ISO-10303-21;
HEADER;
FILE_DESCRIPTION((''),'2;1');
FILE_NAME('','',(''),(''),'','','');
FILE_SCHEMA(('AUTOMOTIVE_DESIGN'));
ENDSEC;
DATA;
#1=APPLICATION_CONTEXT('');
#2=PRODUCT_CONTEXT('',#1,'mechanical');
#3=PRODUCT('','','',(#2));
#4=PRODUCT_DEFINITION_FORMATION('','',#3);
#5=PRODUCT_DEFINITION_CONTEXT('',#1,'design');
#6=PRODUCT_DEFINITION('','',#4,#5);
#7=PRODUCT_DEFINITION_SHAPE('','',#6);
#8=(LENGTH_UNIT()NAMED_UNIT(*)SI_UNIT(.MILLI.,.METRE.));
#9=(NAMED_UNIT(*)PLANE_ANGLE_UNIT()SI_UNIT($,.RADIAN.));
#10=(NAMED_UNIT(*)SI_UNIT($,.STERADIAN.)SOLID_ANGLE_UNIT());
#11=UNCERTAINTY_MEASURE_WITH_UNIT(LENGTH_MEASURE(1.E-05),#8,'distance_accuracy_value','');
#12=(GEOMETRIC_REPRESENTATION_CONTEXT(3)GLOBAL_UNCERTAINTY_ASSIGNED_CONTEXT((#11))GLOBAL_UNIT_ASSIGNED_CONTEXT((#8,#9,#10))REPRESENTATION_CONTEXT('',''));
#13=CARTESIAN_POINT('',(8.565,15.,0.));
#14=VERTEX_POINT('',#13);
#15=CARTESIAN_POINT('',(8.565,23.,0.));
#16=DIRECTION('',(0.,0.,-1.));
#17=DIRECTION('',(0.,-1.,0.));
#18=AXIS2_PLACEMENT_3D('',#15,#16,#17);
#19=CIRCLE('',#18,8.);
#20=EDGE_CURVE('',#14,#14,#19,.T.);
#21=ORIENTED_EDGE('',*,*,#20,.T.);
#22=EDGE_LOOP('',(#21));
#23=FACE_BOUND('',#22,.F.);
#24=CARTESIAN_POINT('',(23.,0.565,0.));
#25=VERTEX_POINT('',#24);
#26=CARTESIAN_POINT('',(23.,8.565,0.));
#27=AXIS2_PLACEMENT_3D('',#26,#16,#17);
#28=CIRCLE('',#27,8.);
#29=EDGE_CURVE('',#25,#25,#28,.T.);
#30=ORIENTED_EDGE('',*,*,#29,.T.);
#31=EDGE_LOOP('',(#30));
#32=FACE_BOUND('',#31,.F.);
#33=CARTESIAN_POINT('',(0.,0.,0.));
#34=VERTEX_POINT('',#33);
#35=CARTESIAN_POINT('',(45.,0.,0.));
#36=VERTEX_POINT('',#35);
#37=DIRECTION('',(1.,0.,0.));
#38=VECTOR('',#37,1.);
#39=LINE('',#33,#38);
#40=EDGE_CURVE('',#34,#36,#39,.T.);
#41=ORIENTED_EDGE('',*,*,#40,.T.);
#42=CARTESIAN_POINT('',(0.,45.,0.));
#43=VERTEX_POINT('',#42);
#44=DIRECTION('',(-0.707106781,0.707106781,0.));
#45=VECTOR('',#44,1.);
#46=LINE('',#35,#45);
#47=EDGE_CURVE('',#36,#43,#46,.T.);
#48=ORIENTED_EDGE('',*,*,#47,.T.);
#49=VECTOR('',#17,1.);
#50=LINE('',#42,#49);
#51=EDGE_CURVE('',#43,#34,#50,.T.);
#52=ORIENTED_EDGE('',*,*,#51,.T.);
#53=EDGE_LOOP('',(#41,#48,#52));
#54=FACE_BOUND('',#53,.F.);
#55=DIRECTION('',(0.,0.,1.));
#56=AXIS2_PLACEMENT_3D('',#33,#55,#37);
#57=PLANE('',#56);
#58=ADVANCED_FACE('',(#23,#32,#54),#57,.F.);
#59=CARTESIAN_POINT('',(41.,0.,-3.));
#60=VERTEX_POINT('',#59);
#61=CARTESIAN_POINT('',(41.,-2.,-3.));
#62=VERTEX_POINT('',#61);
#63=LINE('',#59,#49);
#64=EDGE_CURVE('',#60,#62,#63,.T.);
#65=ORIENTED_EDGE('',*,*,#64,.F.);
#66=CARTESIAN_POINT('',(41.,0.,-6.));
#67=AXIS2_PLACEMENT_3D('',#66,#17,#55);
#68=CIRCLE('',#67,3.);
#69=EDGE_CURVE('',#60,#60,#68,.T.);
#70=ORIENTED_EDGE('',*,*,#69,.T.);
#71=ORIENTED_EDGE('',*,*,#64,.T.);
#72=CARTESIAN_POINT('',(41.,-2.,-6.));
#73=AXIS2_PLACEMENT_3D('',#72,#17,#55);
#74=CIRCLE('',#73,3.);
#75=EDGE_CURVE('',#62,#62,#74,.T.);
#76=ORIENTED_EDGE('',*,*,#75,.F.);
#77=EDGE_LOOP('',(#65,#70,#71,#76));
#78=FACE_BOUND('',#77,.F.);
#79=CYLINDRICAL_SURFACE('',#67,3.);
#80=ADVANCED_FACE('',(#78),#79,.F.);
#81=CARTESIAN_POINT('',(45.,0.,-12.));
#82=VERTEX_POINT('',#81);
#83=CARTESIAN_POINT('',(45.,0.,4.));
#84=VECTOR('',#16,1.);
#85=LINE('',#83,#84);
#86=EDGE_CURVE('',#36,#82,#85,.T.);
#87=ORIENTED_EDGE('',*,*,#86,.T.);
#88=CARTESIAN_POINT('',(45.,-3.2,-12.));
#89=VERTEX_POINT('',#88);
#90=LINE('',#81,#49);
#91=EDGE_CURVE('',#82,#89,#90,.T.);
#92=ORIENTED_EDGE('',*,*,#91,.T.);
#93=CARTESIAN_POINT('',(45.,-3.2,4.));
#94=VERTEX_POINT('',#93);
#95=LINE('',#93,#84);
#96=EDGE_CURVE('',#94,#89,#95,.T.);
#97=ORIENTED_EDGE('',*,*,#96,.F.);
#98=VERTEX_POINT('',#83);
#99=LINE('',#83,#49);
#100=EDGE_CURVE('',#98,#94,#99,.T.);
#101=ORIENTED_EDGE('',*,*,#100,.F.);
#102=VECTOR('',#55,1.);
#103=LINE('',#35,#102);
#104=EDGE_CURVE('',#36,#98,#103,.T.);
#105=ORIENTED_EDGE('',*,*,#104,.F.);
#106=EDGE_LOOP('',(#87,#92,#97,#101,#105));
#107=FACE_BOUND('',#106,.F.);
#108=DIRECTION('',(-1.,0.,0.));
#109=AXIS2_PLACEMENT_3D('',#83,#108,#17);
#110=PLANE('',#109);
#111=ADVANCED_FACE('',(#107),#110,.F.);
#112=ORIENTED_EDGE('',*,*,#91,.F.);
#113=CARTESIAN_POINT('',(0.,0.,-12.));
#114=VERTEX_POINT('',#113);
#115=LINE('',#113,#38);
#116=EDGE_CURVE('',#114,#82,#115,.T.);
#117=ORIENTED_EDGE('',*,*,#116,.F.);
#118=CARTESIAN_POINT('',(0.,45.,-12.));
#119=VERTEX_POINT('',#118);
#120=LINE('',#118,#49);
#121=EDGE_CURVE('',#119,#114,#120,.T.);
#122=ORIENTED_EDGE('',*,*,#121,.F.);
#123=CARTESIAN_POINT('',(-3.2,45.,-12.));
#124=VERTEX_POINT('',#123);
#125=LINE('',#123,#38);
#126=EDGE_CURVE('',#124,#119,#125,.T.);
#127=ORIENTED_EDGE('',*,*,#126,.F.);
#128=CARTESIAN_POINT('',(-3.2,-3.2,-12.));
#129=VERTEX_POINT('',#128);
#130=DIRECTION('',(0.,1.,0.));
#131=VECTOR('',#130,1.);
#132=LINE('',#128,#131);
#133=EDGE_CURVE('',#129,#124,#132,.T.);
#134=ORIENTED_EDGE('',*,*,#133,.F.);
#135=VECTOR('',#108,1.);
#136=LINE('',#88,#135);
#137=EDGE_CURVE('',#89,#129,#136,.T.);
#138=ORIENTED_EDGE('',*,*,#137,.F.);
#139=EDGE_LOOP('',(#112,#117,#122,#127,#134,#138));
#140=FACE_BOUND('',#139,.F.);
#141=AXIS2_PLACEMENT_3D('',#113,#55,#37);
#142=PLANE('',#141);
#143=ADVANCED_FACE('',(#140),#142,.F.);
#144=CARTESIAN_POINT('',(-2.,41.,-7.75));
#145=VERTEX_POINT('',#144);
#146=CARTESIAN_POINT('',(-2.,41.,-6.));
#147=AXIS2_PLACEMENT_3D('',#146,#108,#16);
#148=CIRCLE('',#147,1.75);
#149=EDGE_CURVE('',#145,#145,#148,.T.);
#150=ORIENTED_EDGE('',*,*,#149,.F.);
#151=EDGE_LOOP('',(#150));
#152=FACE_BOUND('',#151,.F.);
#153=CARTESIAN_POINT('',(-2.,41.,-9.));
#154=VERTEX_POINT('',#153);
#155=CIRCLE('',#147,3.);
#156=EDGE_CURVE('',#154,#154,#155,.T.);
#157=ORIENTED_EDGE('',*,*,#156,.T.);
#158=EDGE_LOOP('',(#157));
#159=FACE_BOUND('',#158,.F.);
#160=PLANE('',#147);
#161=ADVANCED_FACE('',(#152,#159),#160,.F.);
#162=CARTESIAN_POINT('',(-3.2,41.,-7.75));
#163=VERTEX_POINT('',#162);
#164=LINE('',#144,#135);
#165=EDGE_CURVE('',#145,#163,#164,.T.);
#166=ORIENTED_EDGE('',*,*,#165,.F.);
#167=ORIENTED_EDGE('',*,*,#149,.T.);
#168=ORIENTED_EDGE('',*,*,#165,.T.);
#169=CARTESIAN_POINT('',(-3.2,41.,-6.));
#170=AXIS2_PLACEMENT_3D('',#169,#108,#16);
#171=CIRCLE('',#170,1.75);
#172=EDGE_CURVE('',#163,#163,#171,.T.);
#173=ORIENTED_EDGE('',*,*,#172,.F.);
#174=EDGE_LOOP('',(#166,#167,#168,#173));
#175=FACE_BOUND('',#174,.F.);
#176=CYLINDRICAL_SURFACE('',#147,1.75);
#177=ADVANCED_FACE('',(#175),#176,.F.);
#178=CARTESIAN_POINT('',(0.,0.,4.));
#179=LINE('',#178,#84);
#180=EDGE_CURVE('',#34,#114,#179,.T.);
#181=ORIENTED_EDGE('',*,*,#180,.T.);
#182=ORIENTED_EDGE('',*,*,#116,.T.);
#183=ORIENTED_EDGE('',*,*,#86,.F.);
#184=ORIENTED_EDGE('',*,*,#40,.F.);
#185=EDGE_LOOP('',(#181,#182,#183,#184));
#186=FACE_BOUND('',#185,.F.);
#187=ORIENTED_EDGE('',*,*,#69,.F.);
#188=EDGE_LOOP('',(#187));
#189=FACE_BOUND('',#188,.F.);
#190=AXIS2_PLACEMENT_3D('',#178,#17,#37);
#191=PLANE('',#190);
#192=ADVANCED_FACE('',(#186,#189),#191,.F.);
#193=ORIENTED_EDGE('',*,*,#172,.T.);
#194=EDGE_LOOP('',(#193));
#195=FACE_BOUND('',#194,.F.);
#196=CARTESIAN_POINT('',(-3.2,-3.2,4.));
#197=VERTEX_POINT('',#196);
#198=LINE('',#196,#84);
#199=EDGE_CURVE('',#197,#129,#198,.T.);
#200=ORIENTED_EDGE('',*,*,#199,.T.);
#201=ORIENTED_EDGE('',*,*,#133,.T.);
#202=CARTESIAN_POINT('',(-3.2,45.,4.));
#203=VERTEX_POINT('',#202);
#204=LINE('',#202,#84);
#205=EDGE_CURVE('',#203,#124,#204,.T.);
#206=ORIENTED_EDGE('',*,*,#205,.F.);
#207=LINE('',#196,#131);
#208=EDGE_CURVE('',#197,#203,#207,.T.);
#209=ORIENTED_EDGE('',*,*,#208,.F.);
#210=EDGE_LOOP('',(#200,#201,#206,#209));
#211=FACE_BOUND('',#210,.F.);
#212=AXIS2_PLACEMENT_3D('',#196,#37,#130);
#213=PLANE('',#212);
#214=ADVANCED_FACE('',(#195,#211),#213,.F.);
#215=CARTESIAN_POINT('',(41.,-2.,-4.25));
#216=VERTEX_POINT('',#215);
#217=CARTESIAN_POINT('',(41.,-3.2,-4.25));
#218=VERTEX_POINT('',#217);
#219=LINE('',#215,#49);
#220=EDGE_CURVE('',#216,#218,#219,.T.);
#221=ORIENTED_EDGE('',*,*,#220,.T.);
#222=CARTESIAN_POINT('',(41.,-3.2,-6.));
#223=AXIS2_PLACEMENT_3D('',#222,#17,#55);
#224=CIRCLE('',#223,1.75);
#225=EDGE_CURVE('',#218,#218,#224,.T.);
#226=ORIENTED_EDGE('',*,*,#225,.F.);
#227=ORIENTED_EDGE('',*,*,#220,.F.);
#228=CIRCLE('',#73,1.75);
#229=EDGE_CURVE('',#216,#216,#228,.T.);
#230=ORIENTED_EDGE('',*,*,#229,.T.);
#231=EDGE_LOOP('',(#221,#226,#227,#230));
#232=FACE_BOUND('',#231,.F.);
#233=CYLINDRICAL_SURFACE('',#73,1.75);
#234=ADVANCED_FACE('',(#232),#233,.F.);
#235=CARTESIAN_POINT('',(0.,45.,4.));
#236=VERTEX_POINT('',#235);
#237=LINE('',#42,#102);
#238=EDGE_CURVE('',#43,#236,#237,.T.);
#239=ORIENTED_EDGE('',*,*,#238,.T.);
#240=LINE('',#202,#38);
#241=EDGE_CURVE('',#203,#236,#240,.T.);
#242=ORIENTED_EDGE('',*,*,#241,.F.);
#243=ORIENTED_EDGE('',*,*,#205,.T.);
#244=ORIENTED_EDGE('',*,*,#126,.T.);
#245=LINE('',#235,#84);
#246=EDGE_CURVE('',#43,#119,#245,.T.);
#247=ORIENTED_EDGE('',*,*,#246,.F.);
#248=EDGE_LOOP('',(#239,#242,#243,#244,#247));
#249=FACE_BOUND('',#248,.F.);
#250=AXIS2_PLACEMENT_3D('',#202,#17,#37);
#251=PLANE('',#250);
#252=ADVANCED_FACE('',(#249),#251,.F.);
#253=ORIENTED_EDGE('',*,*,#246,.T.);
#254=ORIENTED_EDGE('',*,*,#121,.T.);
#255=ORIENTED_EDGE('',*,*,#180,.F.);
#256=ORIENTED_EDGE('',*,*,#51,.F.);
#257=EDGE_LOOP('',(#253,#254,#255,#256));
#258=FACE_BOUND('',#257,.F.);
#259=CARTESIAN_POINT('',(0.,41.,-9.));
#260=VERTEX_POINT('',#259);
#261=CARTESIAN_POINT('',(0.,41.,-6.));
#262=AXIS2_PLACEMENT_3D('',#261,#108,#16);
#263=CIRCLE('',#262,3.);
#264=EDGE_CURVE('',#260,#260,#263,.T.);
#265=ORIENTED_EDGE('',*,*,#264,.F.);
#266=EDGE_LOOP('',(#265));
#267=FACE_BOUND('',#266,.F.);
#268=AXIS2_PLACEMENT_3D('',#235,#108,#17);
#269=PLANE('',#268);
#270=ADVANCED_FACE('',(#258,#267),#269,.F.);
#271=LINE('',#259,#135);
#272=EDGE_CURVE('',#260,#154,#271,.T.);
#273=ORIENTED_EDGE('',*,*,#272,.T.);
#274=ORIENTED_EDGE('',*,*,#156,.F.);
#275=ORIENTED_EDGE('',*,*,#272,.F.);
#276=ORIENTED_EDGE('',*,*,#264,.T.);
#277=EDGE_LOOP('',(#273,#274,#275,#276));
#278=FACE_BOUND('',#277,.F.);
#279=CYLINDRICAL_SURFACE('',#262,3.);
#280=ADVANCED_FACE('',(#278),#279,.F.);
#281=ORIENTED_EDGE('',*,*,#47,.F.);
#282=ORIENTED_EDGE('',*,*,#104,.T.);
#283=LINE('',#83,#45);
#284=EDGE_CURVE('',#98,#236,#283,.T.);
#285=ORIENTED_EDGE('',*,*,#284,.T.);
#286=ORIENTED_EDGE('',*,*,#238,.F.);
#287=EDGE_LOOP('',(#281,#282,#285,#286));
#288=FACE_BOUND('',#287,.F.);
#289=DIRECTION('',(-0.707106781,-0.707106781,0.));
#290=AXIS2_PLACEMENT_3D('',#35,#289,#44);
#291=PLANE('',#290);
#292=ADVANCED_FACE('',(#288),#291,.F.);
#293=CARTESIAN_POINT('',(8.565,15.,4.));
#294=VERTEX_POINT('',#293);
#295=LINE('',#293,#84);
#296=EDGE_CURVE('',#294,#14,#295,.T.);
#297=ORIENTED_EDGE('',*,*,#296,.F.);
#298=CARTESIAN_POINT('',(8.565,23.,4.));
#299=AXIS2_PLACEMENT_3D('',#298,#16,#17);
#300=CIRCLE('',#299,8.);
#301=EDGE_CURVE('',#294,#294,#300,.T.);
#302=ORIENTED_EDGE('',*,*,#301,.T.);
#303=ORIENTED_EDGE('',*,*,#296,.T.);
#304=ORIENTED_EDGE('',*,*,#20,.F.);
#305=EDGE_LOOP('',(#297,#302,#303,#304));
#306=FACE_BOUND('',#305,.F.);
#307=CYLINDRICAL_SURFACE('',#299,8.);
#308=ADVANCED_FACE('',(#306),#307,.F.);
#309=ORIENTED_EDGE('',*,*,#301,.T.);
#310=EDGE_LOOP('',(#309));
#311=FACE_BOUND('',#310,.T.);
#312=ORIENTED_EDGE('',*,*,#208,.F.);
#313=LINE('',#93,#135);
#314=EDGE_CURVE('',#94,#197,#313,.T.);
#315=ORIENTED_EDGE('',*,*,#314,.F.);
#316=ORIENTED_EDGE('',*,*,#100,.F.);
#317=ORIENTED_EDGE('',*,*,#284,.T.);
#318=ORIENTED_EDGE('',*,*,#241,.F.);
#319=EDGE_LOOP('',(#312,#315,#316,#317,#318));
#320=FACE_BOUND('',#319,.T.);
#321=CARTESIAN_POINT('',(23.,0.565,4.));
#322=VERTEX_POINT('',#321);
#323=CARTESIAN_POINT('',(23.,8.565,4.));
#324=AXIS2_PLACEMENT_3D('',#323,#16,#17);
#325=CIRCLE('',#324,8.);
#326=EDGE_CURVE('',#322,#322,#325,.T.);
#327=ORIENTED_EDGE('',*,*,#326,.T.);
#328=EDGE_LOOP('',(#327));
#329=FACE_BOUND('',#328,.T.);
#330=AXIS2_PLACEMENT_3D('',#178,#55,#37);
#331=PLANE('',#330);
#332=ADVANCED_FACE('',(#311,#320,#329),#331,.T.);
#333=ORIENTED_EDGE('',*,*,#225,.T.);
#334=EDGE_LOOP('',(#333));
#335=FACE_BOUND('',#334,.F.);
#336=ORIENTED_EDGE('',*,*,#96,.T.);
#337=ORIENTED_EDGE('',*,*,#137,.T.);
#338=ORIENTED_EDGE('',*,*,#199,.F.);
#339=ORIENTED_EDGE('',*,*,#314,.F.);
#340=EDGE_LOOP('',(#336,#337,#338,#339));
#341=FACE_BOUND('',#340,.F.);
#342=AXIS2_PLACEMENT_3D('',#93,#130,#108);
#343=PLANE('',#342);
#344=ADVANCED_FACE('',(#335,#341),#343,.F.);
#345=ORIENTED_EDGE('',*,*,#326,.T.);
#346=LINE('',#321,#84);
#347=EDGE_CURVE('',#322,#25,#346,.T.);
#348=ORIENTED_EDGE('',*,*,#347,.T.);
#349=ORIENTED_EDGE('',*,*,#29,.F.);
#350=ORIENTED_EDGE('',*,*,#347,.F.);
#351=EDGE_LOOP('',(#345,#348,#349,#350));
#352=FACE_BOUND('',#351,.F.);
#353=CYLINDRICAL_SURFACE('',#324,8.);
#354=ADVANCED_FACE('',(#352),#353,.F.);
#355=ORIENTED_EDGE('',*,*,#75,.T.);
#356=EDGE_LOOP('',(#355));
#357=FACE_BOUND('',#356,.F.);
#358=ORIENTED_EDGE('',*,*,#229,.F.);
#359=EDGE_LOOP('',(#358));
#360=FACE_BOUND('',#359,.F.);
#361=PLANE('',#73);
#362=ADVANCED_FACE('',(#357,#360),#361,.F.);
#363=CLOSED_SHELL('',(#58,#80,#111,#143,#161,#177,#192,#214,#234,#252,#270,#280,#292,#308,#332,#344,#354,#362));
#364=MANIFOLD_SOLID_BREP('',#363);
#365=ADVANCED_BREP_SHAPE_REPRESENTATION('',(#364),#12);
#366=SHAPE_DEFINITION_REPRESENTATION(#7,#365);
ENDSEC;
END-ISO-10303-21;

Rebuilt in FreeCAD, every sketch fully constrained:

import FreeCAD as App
import Part
import Sketcher
Q = App.Units.Quantity


def add_polygon(sketch, points):
    """Adds a closed chain of lines whose ends are joined by coincident constraints."""
    first, n = sketch.GeometryCount, len(points)
    for a, b in zip(points, points[1:] + points[:1]):
        sketch.addGeometry(Part.LineSegment(App.Vector(*a, 0), App.Vector(*b, 0)), False)
    for i in range(n):
        sketch.addConstraint(Sketcher.Constraint("Coincident", first + i, 2, first + (i + 1) % n, 1))

doc = App.newDocument("Part")
body = doc.addObject("PartDesign::Body", "Body")

# Sketch on XY plane
sketch1 = body.newObject("Sketcher::SketchObject", "Sketch")
sketch1.AttachmentSupport = (doc.getObject("XY_Plane"), [""])
sketch1.MapMode = "FlatFace"
add_polygon(sketch1, [(0, 45), (0, 0), (45, 0)])  # lines 0-2
sketch1.addConstraint(Sketcher.Constraint("Vertical", 0))
sketch1.addConstraint(Sketcher.Constraint("Horizontal", 1))
sketch1.addConstraint(Sketcher.Constraint("Coincident", 0, 2, -1, 1))
sketch1.addConstraint(Sketcher.Constraint("Equal", 1, 0))
sketch1.addConstraint(Sketcher.Constraint("DistanceX", 1, 1, 1, 2, Q("45 mm")))
pad1 = body.newObject("PartDesign::Pad", "Pad")
pad1.Profile = sketch1
pad1.Length = 4

# Sketch on XY plane
sketch2 = body.newObject("Sketcher::SketchObject", "Sketch001")
sketch2.AttachmentSupport = (doc.getObject("XY_Plane"), [""])
sketch2.MapMode = "FlatFace"
sketch2.AttachmentOffset = App.Placement(App.Vector(0, 0, 4), App.Rotation())
add_polygon(sketch2, [(45, -3.2), (45, 0), (0, 0), (0, 45), (-3.2, 45), (-3.2, -3.2)])  # lines 0-5
sketch2.addConstraint(Sketcher.Constraint("Vertical", 0))
sketch2.addConstraint(Sketcher.Constraint("Horizontal", 1))
sketch2.addConstraint(Sketcher.Constraint("Vertical", 2))
sketch2.addConstraint(Sketcher.Constraint("Horizontal", 3))
sketch2.addConstraint(Sketcher.Constraint("Vertical", 4))
sketch2.addConstraint(Sketcher.Constraint("Horizontal", 5))
sketch2.addConstraint(Sketcher.Constraint("Coincident", 1, 2, -1, 1))
sketch2.addConstraint(Sketcher.Constraint("Equal", 3, 0))
sketch2.addConstraint(Sketcher.Constraint("Equal", 1, 2))
sketch2.addConstraint(Sketcher.Constraint("DistanceX", 3, 2, 3, 1, Q("3.2 mm")))
sketch2.addConstraint(Sketcher.Constraint("DistanceX", 1, 2, 1, 1, Q("45 mm")))
pad2 = body.newObject("PartDesign::Pad", "Pad001")
pad2.Profile = sketch2
pad2.Length = 16
pad2.Reversed = True

# Sketch on XY plane
sketch3 = body.newObject("Sketcher::SketchObject", "Sketch002")
sketch3.AttachmentSupport = (doc.getObject("XY_Plane"), [""])
sketch3.MapMode = "FlatFace"
sketch3.AttachmentOffset = App.Placement(App.Vector(0, 0, 4), App.Rotation())
sketch3.addGeometry(Part.Circle(App.Vector(9, 23, 0), App.Vector(0, 0, 1), 8), False)
sketch3.addGeometry(Part.Circle(App.Vector(23, 9, 0), App.Vector(0, 0, 1), 8), False)
sketch3.addConstraint(Sketcher.Constraint("Equal", 0, 1))
sketch3.addConstraint(Sketcher.Constraint("Diameter", 0, Q("16 mm")))
sketch3.addConstraint(Sketcher.Constraint("DistanceY", -1, 1, 0, 3, Q("23 mm")))
sketch3.addConstraint(Sketcher.Constraint("DistanceX", -1, 1, 1, 3, Q("23 mm")))
sketch3.addConstraint(Sketcher.Constraint("DistanceX", -1, 1, 0, 3, Q("8.565 mm")))
sketch3.addConstraint(Sketcher.Constraint("DistanceY", -1, 1, 1, 3, Q("8.565 mm")))
doc.recompute()
hole = body.newObject("PartDesign::Hole", "Hole")
hole.Profile = sketch3
hole.ThreadType = "None"
hole.Diameter = 16
hole.DepthType = "ThroughAll"

# Sketch on XZ plane
sketch4 = body.newObject("Sketcher::SketchObject", "Sketch003")
sketch4.AttachmentSupport = (doc.getObject("XZ_Plane"), [""])
sketch4.MapMode = "FlatFace"
sketch4.addGeometry(Part.Circle(App.Vector(41, -6, 0), App.Vector(0, 0, 1), 1.8), False)
sketch4.addConstraint(Sketcher.Constraint("Diameter", 0, Q("3.5 mm")))
sketch4.addConstraint(Sketcher.Constraint("DistanceX", -1, 1, 0, 3, Q("41 mm")))
sketch4.addConstraint(Sketcher.Constraint("DistanceY", 0, 3, -1, 1, Q("6 mm")))
doc.recompute()
hole2 = body.newObject("PartDesign::Hole", "Hole001")
hole2.Profile = sketch4
hole2.ThreadType = "None"
hole2.Diameter = 3.5
hole2.DepthType = "ThroughAll"
hole2.HoleCutType = "Counterbore"
hole2.HoleCutDiameter = 6
hole2.HoleCutDepth = 2
hole2.Reversed = True

# Sketch on YZ plane
sketch5 = body.newObject("Sketcher::SketchObject", "Sketch004")
sketch5.AttachmentSupport = (doc.getObject("YZ_Plane"), [""])
sketch5.MapMode = "FlatFace"
sketch5.addGeometry(Part.Circle(App.Vector(41, -6, 0), App.Vector(0, 0, 1), 1.8), False)
sketch5.addConstraint(Sketcher.Constraint("Diameter", 0, Q("3.5 mm")))
sketch5.addConstraint(Sketcher.Constraint("DistanceX", -1, 1, 0, 3, Q("41 mm")))
sketch5.addConstraint(Sketcher.Constraint("DistanceY", 0, 3, -1, 1, Q("6 mm")))
doc.recompute()
hole3 = body.newObject("PartDesign::Hole", "Hole002")
hole3.Profile = sketch5
hole3.ThreadType = "None"
hole3.Diameter = 3.5
hole3.DepthType = "ThroughAll"
hole3.HoleCutType = "Counterbore"
hole3.HoleCutDiameter = 6
hole3.HoleCutDepth = 2

doc.recompute()
